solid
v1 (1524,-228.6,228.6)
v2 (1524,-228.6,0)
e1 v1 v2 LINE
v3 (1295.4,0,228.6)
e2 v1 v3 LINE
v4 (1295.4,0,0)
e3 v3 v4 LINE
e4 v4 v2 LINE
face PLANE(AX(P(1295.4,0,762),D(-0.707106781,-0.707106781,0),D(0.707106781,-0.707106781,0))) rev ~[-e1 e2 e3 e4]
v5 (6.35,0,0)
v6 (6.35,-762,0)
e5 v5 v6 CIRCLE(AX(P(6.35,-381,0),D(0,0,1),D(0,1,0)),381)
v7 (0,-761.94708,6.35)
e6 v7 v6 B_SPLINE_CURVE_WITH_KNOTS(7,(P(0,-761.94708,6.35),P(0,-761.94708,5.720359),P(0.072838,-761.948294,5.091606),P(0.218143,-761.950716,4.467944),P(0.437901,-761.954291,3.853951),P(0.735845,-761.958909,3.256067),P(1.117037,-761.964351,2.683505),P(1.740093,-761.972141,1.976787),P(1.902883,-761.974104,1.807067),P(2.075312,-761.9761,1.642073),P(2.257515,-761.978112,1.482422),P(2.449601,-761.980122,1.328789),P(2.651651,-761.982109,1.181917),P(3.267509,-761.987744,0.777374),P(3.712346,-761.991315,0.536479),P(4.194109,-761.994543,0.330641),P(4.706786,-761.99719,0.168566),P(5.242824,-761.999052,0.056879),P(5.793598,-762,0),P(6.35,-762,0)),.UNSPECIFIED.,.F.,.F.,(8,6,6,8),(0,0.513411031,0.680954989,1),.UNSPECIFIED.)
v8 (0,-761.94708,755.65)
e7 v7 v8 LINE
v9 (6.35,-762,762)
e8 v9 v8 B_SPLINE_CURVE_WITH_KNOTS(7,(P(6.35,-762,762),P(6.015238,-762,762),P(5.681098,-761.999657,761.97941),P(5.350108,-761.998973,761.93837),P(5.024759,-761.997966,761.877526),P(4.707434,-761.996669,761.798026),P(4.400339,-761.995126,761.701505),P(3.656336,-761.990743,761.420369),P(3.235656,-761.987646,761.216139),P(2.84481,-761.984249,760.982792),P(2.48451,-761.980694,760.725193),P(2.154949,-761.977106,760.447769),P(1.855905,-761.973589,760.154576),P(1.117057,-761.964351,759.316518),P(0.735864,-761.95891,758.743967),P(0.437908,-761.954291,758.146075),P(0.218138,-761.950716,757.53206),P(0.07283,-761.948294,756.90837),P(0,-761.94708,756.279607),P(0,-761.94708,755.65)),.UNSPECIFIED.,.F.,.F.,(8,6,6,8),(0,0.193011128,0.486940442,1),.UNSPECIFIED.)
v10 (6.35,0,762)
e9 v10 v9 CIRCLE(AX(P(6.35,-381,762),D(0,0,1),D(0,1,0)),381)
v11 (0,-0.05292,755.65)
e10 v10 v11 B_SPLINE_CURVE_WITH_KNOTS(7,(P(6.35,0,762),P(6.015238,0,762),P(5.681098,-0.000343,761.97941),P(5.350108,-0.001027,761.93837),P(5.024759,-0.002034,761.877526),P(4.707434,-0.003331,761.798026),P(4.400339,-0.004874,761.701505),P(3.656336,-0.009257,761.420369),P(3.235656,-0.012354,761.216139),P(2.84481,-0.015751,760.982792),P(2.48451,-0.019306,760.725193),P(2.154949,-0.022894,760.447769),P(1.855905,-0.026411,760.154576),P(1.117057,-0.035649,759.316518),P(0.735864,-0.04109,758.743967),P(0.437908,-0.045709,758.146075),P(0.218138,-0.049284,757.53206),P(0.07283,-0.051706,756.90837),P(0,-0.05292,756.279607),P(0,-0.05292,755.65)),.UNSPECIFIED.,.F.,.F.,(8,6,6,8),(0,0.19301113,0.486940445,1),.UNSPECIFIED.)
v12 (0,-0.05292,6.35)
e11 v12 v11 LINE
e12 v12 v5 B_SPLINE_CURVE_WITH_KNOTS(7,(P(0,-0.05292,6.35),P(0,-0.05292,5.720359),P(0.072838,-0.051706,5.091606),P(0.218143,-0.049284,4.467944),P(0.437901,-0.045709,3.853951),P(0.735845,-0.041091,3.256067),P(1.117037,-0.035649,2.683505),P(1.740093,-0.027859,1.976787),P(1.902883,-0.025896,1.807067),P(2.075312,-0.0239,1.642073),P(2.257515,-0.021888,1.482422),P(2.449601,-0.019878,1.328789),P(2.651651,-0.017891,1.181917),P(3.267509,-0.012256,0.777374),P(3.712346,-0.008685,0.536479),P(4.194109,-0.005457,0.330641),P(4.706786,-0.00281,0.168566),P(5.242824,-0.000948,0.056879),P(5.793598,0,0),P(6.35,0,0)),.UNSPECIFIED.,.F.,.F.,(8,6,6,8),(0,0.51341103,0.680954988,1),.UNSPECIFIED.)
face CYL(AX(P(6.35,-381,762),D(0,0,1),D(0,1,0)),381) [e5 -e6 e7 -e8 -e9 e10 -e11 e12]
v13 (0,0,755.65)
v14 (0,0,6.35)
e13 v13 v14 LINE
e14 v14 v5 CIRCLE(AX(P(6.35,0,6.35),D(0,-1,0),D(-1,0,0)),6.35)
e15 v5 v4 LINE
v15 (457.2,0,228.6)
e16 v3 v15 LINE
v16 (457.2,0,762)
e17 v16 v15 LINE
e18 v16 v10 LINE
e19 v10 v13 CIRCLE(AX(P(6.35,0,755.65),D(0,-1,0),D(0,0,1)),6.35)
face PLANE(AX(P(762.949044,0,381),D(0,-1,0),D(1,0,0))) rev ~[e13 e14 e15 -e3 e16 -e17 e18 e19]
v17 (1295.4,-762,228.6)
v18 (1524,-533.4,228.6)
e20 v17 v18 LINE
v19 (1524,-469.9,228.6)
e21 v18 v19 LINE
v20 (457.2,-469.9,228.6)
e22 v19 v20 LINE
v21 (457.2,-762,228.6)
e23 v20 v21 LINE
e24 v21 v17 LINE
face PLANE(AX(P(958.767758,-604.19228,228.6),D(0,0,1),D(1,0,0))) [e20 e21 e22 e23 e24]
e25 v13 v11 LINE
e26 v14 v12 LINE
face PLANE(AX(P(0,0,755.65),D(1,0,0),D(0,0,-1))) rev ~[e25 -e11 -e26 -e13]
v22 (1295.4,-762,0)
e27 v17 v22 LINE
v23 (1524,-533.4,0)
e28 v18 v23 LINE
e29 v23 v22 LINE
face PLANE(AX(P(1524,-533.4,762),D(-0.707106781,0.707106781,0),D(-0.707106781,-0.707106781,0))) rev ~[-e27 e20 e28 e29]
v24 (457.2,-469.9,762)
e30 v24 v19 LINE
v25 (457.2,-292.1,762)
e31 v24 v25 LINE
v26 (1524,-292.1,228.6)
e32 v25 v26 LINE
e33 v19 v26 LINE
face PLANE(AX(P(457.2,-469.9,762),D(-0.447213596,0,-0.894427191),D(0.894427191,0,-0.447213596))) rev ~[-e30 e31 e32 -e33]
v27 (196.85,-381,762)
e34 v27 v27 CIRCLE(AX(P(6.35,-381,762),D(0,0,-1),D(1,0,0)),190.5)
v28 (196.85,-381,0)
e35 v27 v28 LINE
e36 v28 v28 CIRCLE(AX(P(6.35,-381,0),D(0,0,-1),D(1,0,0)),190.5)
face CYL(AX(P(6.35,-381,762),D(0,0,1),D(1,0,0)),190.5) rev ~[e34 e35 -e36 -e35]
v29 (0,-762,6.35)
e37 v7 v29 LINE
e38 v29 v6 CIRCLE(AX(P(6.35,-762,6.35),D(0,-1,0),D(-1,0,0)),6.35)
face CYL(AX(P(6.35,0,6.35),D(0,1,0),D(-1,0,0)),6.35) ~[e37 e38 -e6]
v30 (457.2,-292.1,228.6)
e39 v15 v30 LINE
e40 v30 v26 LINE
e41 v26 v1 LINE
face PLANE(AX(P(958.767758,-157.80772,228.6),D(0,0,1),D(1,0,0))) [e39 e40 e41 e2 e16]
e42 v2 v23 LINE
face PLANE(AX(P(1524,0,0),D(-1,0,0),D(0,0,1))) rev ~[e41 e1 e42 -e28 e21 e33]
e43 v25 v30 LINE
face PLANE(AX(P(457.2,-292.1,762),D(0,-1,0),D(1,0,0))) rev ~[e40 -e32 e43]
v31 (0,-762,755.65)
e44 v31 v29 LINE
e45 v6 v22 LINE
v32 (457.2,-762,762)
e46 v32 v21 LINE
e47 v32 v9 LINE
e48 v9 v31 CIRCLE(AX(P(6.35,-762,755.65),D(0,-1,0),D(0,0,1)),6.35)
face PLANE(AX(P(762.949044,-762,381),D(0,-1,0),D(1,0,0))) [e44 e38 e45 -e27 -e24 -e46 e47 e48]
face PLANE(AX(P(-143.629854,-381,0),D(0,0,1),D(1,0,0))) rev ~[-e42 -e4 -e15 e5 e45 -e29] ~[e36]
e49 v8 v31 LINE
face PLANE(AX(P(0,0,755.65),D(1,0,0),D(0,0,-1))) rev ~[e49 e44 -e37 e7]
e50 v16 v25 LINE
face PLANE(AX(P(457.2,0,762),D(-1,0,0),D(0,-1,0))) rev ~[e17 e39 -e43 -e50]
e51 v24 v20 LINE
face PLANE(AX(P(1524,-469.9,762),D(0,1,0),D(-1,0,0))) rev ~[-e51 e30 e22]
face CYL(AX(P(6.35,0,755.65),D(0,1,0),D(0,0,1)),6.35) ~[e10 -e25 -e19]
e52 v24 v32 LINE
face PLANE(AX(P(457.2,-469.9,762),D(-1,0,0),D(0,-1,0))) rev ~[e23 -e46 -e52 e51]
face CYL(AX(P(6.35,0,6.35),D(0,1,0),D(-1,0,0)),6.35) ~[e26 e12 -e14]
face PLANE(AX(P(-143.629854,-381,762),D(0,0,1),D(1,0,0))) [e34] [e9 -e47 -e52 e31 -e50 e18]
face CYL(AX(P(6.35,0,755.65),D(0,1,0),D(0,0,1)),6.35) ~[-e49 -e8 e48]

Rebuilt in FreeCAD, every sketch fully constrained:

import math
import FreeCAD as App
import Part
import Sketcher
Q = App.Units.Quantity

doc = App.newDocument("Part")
params = doc.addObject("Spreadsheet::Sheet", "Params")
for row, (alias, value) in enumerate([
    ("sketch1_height", "30 in"),
    ("sketch1_radius", "0.25 in"),
    ("pad1_length", "30 in"),
    ("sketch2_width", "9 in"),
    ("sketch3_width", "33 in"),
    ("sketch3_width2", "42 in"),
    ("sketch3_height", "2.5 in"),
    ("pocket2_length", "21 in"),
    ("sketch4_width", "42 in"),
    ("sketch4_height", "21 in"),
    ("sketch5_radius", "15 in"),
    ("sketch5_radius2", "7.5 in"),
    ("pad2_length", "30 in"),
    ("sketch6_diameter", "15 in"),
], start=1):
    params.set(f"A{row}", alias)
    params.set(f"B{row}", "=" + value)
    params.setAlias(f"B{row}", alias)

body = doc.addObject("PartDesign::Body", "Body")

# Sketch on XZ plane
sketch1 = body.newObject("Sketcher::SketchObject", "Sketch")
sketch1.AttachmentSupport = (doc.getObject("XZ_Plane"), [""])
sketch1.MapMode = "FlatFace"
sketch1.addGeometry(Part.ArcOfCircle(Part.Circle(App.Vector(6.35, 6.35, 0), App.Vector(0, 0, 1), 6.35), math.radians(180), math.radians(270)), False)
sketch1.addGeometry(Part.LineSegment(App.Vector(6.35, 0, 0), App.Vector(1524, 0, 0)), False)
sketch1.addGeometry(Part.LineSegment(App.Vector(1524, 0, 0), App.Vector(1524, 762, 0)), False)
sketch1.addGeometry(Part.LineSegment(App.Vector(1524, 762, 0), App.Vector(6.35, 762, 0)), False)
sketch1.addGeometry(Part.ArcOfCircle(Part.Circle(App.Vector(6.35, 755.65, 0), App.Vector(0, 0, 1), 6.35), math.radians(90), math.radians(180)), False)
sketch1.addGeometry(Part.LineSegment(App.Vector(0, 755.65, 0), App.Vector(0, 6.35, 0)), False)
sketch1.addConstraint(Sketcher.Constraint("Tangent", 0, 2, 1, 1))
sketch1.addConstraint(Sketcher.Constraint("Coincident", 1, 2, 2, 1))
sketch1.addConstraint(Sketcher.Constraint("Coincident", 2, 2, 3, 1))
sketch1.addConstraint(Sketcher.Constraint("Tangent", 3, 2, 4, 1))
sketch1.addConstraint(Sketcher.Constraint("Tangent", 4, 2, 5, 1))
sketch1.addConstraint(Sketcher.Constraint("Tangent", 5, 2, 0, 1))
sketch1.addConstraint(Sketcher.Constraint("Horizontal", 1))
sketch1.addConstraint(Sketcher.Constraint("Vertical", 2))
sketch1.addConstraint(Sketcher.Constraint("Horizontal", 3))
sketch1.addConstraint(Sketcher.Constraint("Vertical", 5))
sketch1.addConstraint(Sketcher.Constraint("Equal", 0, 4))
sketch1.addConstraint(Sketcher.Constraint("PointOnObject", 0, 2, -1))
sketch1.addConstraint(Sketcher.Constraint("PointOnObject", 4, 2, -2))
sketch1.addConstraint(Sketcher.Constraint("DistanceY", 2, 1, 2, 2, Q("30 in")))
sketch1.addConstraint(Sketcher.Constraint("Radius", 0, Q("0.25 in")))
sketch1.addConstraint(Sketcher.Constraint("DistanceX", -1, 1, 1, 2, Q("60 in")))
sketch1.setExpression("Constraints[13]", "Params.sketch1_height")
sketch1.setExpression("Constraints[14]", "Params.sketch1_radius")
pad1 = body.newObject("PartDesign::Pad", "Pad")
pad1.Profile = sketch1
pad1.setExpression("Length", "Params.pad1_length")

# Sketch on XY plane
sketch2 = body.newObject("Sketcher::SketchObject", "Sketch001")
sketch2.AttachmentSupport = (doc.getObject("XY_Plane"), [""])
sketch2.MapMode = "FlatFace"
sketch2.AttachmentOffset = App.Placement(App.Vector(0, 0, 30 * 25.4), App.Rotation())
sketch2.addGeometry(Part.LineSegment(App.Vector(1524, -228.6, 0), App.Vector(1524, 0, 0)), False)
sketch2.addGeometry(Part.LineSegment(App.Vector(1524, 0, 0), App.Vector(1295.4, 0, 0)), False)
sketch2.addGeometry(Part.LineSegment(App.Vector(1295.4, 0, 0), App.Vector(1524, -228.6, 0)), False)
sketch2.addGeometry(Part.LineSegment(App.Vector(1524, -762, 0), App.Vector(1524, -533.4, 0)), False)
sketch2.addGeometry(Part.LineSegment(App.Vector(1524, -533.4, 0), App.Vector(1295.4, -762, 0)), False)
sketch2.addGeometry(Part.LineSegment(App.Vector(1295.4, -762, 0), App.Vector(1524, -762, 0)), False)
sketch2.addConstraint(Sketcher.Constraint("Coincident", 0, 2, 1, 1))
sketch2.addConstraint(Sketcher.Constraint("Coincident", 1, 2, 2, 1))
sketch2.addConstraint(Sketcher.Constraint("Coincident", 2, 2, 0, 1))
sketch2.addConstraint(Sketcher.Constraint("Coincident", 3, 2, 4, 1))
sketch2.addConstraint(Sketcher.Constraint("Coincident", 4, 2, 5, 1))
sketch2.addConstraint(Sketcher.Constraint("Coincident", 5, 2, 3, 1))
sketch2.addConstraint(Sketcher.Constraint("Vertical", 0))
sketch2.addConstraint(Sketcher.Constraint("Horizontal", 1))
sketch2.addConstraint(Sketcher.Constraint("Vertical", 3))
sketch2.addConstraint(Sketcher.Constraint("Horizontal", 5))
sketch2.addConstraint(Sketcher.Constraint("PointOnObject", 0, 2, -1))
sketch2.addConstraint(Sketcher.Constraint("Perpendicular", 2, 4))
sketch2.addConstraint(Sketcher.Constraint("Vertical", 2, 2, 3, 2))
sketch2.addConstraint(Sketcher.Constraint("Vertical", 1, 2, 4, 2))
sketch2.addConstraint(Sketcher.Constraint("Equal", 5, 0))
sketch2.addConstraint(Sketcher.Constraint("DistanceX", 1, 2, 1, 1, Q("9 in")))
sketch2.addConstraint(Sketcher.Constraint("DistanceX", -1, 1, 0, 2, Q("60 in")))
sketch2.addConstraint(Sketcher.Constraint("DistanceY", 3, 2, -1, 1, Q("21 in")))
sketch2.setExpression("Constraints[15]", "Params.sketch2_width")
pocket1 = body.newObject("PartDesign::Pocket", "Pocket")
pocket1.Profile = sketch2
pocket1.Type = "ThroughAll"

# Sketch on XY plane
sketch3 = body.newObject("Sketcher::SketchObject", "Sketch002")
sketch3.AttachmentSupport = (doc.getObject("XY_Plane"), [""])
sketch3.MapMode = "FlatFace"
sketch3.AttachmentOffset = App.Placement(App.Vector(0, 0, 30 * 25.4), App.Rotation())
sketch3.addGeometry(Part.LineSegment(App.Vector(1524, -292.1, 0), App.Vector(1524, -228.6, 0)), False)
sketch3.addGeometry(Part.LineSegment(App.Vector(1524, -228.6, 0), App.Vector(1295.4, 0, 0)), False)
sketch3.addGeometry(Part.LineSegment(App.Vector(1295.4, 0, 0), App.Vector(457.2, 0, 0)), False)
sketch3.addGeometry(Part.LineSegment(App.Vector(457.2, 0, 0), App.Vector(457.2, -292.1, 0)), False)
sketch3.addGeometry(Part.LineSegment(App.Vector(457.2, -292.1, 0), App.Vector(1524, -292.1, 0)), False)
sketch3.addGeometry(Part.LineSegment(App.Vector(1524, -533.4, 0), App.Vector(1524, -469.9, 0)), False)
sketch3.addGeometry(Part.LineSegment(App.Vector(1524, -469.9, 0), App.Vector(457.2, -469.9, 0)), False)
sketch3.addGeometry(Part.LineSegment(App.Vector(457.2, -469.9, 0), App.Vector(457.2, -762, 0)), False)
sketch3.addGeometry(Part.LineSegment(App.Vector(457.2, -762, 0), App.Vector(1295.4, -762, 0)), False)
sketch3.addGeometry(Part.LineSegment(App.Vector(1295.4, -762, 0), App.Vector(1524, -533.4, 0)), False)
sketch3.addConstraint(Sketcher.Constraint("Coincident", 0, 2, 1, 1))
sketch3.addConstraint(Sketcher.Constraint("Coincident", 1, 2, 2, 1))
sketch3.addConstraint(Sketcher.Constraint("Coincident", 2, 2, 3, 1))
sketch3.addConstraint(Sketcher.Constraint("Coincident", 3, 2, 4, 1))
sketch3.addConstraint(Sketcher.Constraint("Coincident", 4, 2, 0, 1))
sketch3.addConstraint(Sketcher.Constraint("Coincident", 5, 2, 6, 1))
sketch3.addConstraint(Sketcher.Constraint("Coincident", 6, 2, 7, 1))
sketch3.addConstraint(Sketcher.Constraint("Coincident", 7, 2, 8, 1))
sketch3.addConstraint(Sketcher.Constraint("Coincident", 8, 2, 9, 1))
sketch3.addConstraint(Sketcher.Constraint("Coincident", 9, 2, 5, 1))
sketch3.addConstraint(Sketcher.Constraint("Vertical", 0))
sketch3.addConstraint(Sketcher.Constraint("Horizontal", 2))
sketch3.addConstraint(Sketcher.Constraint("Vertical", 3))
sketch3.addConstraint(Sketcher.Constraint("Horizontal", 4))
sketch3.addConstraint(Sketcher.Constraint("Vertical", 5))
sketch3.addConstraint(Sketcher.Constraint("Horizontal", 6))
sketch3.addConstraint(Sketcher.Constraint("Vertical", 7))
sketch3.addConstraint(Sketcher.Constraint("Horizontal", 8))
sketch3.addConstraint(Sketcher.Constraint("PointOnObject", 1, 2, -1))
sketch3.addConstraint(Sketcher.Constraint("Perpendicular", 1, 9))
sketch3.addConstraint(Sketcher.Constraint("Vertical", 4, 2, 5, 2))
sketch3.addConstraint(Sketcher.Constraint("Vertical", 3, 2, 6, 2))
sketch3.addConstraint(Sketcher.Constraint("Vertical", 1, 2, 8, 2))
sketch3.addConstraint(Sketcher.Constraint("Equal", 0, 5))
sketch3.addConstraint(Sketcher.Constraint("Equal", 3, 7))
sketch3.addConstraint(Sketcher.Constraint("DistanceX", 2, 2, 2, 1, Q("33 in")))
sketch3.addConstraint(Sketcher.Constraint("DistanceX", 4, 1, 4, 2, Q("42 in")))
sketch3.addConstraint(Sketcher.Constraint("DistanceY", 0, 1, 0, 2, Q("2.5 in")))
sketch3.addConstraint(Sketcher.Constraint("DistanceX", -1, 1, 0, 2, Q("60 in")))
sketch3.addConstraint(Sketcher.Constraint("DistanceY", 7, 2, -1, 1, Q("30 in")))
sketch3.setExpression("Constraints[25]", "Params.sketch3_width")
sketch3.setExpression("Constraints[26]", "Params.sketch3_width2")
sketch3.setExpression("Constraints[27]", "Params.sketch3_height")
pocket2 = body.newObject("PartDesign::Pocket", "Pocket001")
pocket2.Profile = sketch3
pocket2.setExpression("Length", "Params.pocket2_length")

# Sketch on XZ plane
sketch4 = body.newObject("Sketcher::SketchObject", "Sketch003")
sketch4.AttachmentSupport = (doc.getObject("XZ_Plane"), [""])
sketch4.MapMode = "FlatFace"
sketch4.AttachmentOffset = App.Placement(App.Vector(0, 0, 18.5 * 25.4), App.Rotation())
sketch4.addGeometry(Part.LineSegment(App.Vector(1524, 762, 0), App.Vector(457.2, 762, 0)), False)
sketch4.addGeometry(Part.LineSegment(App.Vector(457.2, 762, 0), App.Vector(1524, 228.6, 0)), False)
sketch4.addGeometry(Part.LineSegment(App.Vector(1524, 228.6, 0), App.Vector(1524, 762, 0)), False)
sketch4.addConstraint(Sketcher.Constraint("Coincident", 0, 2, 1, 1))
sketch4.addConstraint(Sketcher.Constraint("Coincident", 1, 2, 2, 1))
sketch4.addConstraint(Sketcher.Constraint("Coincident", 2, 2, 0, 1))
sketch4.addConstraint(Sketcher.Constraint("Horizontal", 0))
sketch4.addConstraint(Sketcher.Constraint("Vertical", 2))
sketch4.addConstraint(Sketcher.Constraint("DistanceX", 0, 2, 0, 1, Q("42 in")))
sketch4.addConstraint(Sketcher.Constraint("DistanceY", 2, 1, 2, 2, Q("21 in")))
sketch4.addConstraint(Sketcher.Constraint("DistanceX", -1, 1, 0, 2, Q("18 in")))
sketch4.addConstraint(Sketcher.Constraint("DistanceY", -1, 1, 0, 2, Q("30 in")))
sketch4.setExpression("Constraints[5]", "Params.sketch4_width")
sketch4.setExpression("Constraints[6]", "Params.sketch4_height")
pocket3 = body.newObject("PartDesign::Pocket", "Pocket002")
pocket3.Profile = sketch4
pocket3.Type = "ThroughAll"

# Sketch on XY plane
sketch5 = body.newObject("Sketcher::SketchObject", "Sketch004")
sketch5.AttachmentSupport = (doc.getObject("XY_Plane"), [""])
sketch5.MapMode = "FlatFace"
sketch5.AttachmentOffset = App.Placement(App.Vector(0, 0, 30 * 25.4), App.Rotation())
sketch5.addGeometry(Part.LineSegment(App.Vector(6.35, -190.5, 0), App.Vector(6.35, 0, 0)), False)
sketch5.addGeometry(Part.ArcOfCircle(Part.Circle(App.Vector(6.35, -381, 0), App.Vector(0, 0, 1), 381), math.radians(90), math.radians(270)), False)
sketch5.addGeometry(Part.LineSegment(App.Vector(6.35, -762, 0), App.Vector(6.35, -571.5, 0)), False)
sketch5.addGeometry(Part.ArcOfCircle(Part.Circle(App.Vector(6.35, -381, 0), App.Vector(0, 0, 1), 190.5), math.radians(90), math.radians(270)), False)
sketch5.addConstraint(Sketcher.Constraint("Coincident", 0, 2, 1, 1))
sketch5.addConstraint(Sketcher.Constraint("Coincident", 1, 2, 2, 1))
sketch5.addConstraint(Sketcher.Constraint("Coincident", 2, 2, 3, 2))
sketch5.addConstraint(Sketcher.Constraint("Coincident", 3, 1, 0, 1))
sketch5.addConstraint(Sketcher.Constraint("Vertical", 0))
sketch5.addConstraint(Sketcher.Constraint("Vertical", 2))
sketch5.addConstraint(Sketcher.Constraint("Coincident", 3, 3, 1, 3))
sketch5.addConstraint(Sketcher.Constraint("PointOnObject", 0, 2, -1))
sketch5.addConstraint(Sketcher.Constraint("Vertical", 3, 3, 0, 2))
sketch5.addConstraint(Sketcher.Constraint("Vertical", 0, 2, 1, 2))
sketch5.addConstraint(Sketcher.Constraint("Radius", 1, Q("15 in")))
sketch5.addConstraint(Sketcher.Constraint("Radius", 3, Q("7.5 in")))
sketch5.addConstraint(Sketcher.Constraint("DistanceX", -1, 1, 1, 3, Q("0.25 in")))
sketch5.setExpression("Constraints[10]", "Params.sketch5_radius")
sketch5.setExpression("Constraints[11]", "Params.sketch5_radius2")
pad2 = body.newObject("PartDesign::Pad", "Pad001")
pad2.Profile = sketch5
pad2.setExpression("Length", "Params.pad2_length")
pad2.Reversed = True

# Sketch on XY plane
sketch6 = body.newObject("Sketcher::SketchObject", "Sketch005")
sketch6.AttachmentSupport = (doc.getObject("XY_Plane"), [""])
sketch6.MapMode = "FlatFace"
sketch6.AttachmentOffset = App.Placement(App.Vector(0, 0, 30 * 25.4), App.Rotation())
sketch6.addGeometry(Part.Circle(App.Vector(6.35, -381, 0), App.Vector(0, 0, 1), 190.5), False)
sketch6.addConstraint(Sketcher.Constraint("Diameter", 0, Q("15 in")))
sketch6.addConstraint(Sketcher.Constraint("DistanceY", 0, 3, -1, 1, Q("15 in")))
sketch6.addConstraint(Sketcher.Constraint("DistanceX", -1, 1, 0, 3, Q("0.25 in")))
sketch6.setExpression("Constraints[0]", "Params.sketch6_diameter")
pocket4 = body.newObject("PartDesign::Pocket", "Pocket003")
pocket4.Profile = sketch6
pocket4.Type = "ThroughAll"

doc.recompute()
